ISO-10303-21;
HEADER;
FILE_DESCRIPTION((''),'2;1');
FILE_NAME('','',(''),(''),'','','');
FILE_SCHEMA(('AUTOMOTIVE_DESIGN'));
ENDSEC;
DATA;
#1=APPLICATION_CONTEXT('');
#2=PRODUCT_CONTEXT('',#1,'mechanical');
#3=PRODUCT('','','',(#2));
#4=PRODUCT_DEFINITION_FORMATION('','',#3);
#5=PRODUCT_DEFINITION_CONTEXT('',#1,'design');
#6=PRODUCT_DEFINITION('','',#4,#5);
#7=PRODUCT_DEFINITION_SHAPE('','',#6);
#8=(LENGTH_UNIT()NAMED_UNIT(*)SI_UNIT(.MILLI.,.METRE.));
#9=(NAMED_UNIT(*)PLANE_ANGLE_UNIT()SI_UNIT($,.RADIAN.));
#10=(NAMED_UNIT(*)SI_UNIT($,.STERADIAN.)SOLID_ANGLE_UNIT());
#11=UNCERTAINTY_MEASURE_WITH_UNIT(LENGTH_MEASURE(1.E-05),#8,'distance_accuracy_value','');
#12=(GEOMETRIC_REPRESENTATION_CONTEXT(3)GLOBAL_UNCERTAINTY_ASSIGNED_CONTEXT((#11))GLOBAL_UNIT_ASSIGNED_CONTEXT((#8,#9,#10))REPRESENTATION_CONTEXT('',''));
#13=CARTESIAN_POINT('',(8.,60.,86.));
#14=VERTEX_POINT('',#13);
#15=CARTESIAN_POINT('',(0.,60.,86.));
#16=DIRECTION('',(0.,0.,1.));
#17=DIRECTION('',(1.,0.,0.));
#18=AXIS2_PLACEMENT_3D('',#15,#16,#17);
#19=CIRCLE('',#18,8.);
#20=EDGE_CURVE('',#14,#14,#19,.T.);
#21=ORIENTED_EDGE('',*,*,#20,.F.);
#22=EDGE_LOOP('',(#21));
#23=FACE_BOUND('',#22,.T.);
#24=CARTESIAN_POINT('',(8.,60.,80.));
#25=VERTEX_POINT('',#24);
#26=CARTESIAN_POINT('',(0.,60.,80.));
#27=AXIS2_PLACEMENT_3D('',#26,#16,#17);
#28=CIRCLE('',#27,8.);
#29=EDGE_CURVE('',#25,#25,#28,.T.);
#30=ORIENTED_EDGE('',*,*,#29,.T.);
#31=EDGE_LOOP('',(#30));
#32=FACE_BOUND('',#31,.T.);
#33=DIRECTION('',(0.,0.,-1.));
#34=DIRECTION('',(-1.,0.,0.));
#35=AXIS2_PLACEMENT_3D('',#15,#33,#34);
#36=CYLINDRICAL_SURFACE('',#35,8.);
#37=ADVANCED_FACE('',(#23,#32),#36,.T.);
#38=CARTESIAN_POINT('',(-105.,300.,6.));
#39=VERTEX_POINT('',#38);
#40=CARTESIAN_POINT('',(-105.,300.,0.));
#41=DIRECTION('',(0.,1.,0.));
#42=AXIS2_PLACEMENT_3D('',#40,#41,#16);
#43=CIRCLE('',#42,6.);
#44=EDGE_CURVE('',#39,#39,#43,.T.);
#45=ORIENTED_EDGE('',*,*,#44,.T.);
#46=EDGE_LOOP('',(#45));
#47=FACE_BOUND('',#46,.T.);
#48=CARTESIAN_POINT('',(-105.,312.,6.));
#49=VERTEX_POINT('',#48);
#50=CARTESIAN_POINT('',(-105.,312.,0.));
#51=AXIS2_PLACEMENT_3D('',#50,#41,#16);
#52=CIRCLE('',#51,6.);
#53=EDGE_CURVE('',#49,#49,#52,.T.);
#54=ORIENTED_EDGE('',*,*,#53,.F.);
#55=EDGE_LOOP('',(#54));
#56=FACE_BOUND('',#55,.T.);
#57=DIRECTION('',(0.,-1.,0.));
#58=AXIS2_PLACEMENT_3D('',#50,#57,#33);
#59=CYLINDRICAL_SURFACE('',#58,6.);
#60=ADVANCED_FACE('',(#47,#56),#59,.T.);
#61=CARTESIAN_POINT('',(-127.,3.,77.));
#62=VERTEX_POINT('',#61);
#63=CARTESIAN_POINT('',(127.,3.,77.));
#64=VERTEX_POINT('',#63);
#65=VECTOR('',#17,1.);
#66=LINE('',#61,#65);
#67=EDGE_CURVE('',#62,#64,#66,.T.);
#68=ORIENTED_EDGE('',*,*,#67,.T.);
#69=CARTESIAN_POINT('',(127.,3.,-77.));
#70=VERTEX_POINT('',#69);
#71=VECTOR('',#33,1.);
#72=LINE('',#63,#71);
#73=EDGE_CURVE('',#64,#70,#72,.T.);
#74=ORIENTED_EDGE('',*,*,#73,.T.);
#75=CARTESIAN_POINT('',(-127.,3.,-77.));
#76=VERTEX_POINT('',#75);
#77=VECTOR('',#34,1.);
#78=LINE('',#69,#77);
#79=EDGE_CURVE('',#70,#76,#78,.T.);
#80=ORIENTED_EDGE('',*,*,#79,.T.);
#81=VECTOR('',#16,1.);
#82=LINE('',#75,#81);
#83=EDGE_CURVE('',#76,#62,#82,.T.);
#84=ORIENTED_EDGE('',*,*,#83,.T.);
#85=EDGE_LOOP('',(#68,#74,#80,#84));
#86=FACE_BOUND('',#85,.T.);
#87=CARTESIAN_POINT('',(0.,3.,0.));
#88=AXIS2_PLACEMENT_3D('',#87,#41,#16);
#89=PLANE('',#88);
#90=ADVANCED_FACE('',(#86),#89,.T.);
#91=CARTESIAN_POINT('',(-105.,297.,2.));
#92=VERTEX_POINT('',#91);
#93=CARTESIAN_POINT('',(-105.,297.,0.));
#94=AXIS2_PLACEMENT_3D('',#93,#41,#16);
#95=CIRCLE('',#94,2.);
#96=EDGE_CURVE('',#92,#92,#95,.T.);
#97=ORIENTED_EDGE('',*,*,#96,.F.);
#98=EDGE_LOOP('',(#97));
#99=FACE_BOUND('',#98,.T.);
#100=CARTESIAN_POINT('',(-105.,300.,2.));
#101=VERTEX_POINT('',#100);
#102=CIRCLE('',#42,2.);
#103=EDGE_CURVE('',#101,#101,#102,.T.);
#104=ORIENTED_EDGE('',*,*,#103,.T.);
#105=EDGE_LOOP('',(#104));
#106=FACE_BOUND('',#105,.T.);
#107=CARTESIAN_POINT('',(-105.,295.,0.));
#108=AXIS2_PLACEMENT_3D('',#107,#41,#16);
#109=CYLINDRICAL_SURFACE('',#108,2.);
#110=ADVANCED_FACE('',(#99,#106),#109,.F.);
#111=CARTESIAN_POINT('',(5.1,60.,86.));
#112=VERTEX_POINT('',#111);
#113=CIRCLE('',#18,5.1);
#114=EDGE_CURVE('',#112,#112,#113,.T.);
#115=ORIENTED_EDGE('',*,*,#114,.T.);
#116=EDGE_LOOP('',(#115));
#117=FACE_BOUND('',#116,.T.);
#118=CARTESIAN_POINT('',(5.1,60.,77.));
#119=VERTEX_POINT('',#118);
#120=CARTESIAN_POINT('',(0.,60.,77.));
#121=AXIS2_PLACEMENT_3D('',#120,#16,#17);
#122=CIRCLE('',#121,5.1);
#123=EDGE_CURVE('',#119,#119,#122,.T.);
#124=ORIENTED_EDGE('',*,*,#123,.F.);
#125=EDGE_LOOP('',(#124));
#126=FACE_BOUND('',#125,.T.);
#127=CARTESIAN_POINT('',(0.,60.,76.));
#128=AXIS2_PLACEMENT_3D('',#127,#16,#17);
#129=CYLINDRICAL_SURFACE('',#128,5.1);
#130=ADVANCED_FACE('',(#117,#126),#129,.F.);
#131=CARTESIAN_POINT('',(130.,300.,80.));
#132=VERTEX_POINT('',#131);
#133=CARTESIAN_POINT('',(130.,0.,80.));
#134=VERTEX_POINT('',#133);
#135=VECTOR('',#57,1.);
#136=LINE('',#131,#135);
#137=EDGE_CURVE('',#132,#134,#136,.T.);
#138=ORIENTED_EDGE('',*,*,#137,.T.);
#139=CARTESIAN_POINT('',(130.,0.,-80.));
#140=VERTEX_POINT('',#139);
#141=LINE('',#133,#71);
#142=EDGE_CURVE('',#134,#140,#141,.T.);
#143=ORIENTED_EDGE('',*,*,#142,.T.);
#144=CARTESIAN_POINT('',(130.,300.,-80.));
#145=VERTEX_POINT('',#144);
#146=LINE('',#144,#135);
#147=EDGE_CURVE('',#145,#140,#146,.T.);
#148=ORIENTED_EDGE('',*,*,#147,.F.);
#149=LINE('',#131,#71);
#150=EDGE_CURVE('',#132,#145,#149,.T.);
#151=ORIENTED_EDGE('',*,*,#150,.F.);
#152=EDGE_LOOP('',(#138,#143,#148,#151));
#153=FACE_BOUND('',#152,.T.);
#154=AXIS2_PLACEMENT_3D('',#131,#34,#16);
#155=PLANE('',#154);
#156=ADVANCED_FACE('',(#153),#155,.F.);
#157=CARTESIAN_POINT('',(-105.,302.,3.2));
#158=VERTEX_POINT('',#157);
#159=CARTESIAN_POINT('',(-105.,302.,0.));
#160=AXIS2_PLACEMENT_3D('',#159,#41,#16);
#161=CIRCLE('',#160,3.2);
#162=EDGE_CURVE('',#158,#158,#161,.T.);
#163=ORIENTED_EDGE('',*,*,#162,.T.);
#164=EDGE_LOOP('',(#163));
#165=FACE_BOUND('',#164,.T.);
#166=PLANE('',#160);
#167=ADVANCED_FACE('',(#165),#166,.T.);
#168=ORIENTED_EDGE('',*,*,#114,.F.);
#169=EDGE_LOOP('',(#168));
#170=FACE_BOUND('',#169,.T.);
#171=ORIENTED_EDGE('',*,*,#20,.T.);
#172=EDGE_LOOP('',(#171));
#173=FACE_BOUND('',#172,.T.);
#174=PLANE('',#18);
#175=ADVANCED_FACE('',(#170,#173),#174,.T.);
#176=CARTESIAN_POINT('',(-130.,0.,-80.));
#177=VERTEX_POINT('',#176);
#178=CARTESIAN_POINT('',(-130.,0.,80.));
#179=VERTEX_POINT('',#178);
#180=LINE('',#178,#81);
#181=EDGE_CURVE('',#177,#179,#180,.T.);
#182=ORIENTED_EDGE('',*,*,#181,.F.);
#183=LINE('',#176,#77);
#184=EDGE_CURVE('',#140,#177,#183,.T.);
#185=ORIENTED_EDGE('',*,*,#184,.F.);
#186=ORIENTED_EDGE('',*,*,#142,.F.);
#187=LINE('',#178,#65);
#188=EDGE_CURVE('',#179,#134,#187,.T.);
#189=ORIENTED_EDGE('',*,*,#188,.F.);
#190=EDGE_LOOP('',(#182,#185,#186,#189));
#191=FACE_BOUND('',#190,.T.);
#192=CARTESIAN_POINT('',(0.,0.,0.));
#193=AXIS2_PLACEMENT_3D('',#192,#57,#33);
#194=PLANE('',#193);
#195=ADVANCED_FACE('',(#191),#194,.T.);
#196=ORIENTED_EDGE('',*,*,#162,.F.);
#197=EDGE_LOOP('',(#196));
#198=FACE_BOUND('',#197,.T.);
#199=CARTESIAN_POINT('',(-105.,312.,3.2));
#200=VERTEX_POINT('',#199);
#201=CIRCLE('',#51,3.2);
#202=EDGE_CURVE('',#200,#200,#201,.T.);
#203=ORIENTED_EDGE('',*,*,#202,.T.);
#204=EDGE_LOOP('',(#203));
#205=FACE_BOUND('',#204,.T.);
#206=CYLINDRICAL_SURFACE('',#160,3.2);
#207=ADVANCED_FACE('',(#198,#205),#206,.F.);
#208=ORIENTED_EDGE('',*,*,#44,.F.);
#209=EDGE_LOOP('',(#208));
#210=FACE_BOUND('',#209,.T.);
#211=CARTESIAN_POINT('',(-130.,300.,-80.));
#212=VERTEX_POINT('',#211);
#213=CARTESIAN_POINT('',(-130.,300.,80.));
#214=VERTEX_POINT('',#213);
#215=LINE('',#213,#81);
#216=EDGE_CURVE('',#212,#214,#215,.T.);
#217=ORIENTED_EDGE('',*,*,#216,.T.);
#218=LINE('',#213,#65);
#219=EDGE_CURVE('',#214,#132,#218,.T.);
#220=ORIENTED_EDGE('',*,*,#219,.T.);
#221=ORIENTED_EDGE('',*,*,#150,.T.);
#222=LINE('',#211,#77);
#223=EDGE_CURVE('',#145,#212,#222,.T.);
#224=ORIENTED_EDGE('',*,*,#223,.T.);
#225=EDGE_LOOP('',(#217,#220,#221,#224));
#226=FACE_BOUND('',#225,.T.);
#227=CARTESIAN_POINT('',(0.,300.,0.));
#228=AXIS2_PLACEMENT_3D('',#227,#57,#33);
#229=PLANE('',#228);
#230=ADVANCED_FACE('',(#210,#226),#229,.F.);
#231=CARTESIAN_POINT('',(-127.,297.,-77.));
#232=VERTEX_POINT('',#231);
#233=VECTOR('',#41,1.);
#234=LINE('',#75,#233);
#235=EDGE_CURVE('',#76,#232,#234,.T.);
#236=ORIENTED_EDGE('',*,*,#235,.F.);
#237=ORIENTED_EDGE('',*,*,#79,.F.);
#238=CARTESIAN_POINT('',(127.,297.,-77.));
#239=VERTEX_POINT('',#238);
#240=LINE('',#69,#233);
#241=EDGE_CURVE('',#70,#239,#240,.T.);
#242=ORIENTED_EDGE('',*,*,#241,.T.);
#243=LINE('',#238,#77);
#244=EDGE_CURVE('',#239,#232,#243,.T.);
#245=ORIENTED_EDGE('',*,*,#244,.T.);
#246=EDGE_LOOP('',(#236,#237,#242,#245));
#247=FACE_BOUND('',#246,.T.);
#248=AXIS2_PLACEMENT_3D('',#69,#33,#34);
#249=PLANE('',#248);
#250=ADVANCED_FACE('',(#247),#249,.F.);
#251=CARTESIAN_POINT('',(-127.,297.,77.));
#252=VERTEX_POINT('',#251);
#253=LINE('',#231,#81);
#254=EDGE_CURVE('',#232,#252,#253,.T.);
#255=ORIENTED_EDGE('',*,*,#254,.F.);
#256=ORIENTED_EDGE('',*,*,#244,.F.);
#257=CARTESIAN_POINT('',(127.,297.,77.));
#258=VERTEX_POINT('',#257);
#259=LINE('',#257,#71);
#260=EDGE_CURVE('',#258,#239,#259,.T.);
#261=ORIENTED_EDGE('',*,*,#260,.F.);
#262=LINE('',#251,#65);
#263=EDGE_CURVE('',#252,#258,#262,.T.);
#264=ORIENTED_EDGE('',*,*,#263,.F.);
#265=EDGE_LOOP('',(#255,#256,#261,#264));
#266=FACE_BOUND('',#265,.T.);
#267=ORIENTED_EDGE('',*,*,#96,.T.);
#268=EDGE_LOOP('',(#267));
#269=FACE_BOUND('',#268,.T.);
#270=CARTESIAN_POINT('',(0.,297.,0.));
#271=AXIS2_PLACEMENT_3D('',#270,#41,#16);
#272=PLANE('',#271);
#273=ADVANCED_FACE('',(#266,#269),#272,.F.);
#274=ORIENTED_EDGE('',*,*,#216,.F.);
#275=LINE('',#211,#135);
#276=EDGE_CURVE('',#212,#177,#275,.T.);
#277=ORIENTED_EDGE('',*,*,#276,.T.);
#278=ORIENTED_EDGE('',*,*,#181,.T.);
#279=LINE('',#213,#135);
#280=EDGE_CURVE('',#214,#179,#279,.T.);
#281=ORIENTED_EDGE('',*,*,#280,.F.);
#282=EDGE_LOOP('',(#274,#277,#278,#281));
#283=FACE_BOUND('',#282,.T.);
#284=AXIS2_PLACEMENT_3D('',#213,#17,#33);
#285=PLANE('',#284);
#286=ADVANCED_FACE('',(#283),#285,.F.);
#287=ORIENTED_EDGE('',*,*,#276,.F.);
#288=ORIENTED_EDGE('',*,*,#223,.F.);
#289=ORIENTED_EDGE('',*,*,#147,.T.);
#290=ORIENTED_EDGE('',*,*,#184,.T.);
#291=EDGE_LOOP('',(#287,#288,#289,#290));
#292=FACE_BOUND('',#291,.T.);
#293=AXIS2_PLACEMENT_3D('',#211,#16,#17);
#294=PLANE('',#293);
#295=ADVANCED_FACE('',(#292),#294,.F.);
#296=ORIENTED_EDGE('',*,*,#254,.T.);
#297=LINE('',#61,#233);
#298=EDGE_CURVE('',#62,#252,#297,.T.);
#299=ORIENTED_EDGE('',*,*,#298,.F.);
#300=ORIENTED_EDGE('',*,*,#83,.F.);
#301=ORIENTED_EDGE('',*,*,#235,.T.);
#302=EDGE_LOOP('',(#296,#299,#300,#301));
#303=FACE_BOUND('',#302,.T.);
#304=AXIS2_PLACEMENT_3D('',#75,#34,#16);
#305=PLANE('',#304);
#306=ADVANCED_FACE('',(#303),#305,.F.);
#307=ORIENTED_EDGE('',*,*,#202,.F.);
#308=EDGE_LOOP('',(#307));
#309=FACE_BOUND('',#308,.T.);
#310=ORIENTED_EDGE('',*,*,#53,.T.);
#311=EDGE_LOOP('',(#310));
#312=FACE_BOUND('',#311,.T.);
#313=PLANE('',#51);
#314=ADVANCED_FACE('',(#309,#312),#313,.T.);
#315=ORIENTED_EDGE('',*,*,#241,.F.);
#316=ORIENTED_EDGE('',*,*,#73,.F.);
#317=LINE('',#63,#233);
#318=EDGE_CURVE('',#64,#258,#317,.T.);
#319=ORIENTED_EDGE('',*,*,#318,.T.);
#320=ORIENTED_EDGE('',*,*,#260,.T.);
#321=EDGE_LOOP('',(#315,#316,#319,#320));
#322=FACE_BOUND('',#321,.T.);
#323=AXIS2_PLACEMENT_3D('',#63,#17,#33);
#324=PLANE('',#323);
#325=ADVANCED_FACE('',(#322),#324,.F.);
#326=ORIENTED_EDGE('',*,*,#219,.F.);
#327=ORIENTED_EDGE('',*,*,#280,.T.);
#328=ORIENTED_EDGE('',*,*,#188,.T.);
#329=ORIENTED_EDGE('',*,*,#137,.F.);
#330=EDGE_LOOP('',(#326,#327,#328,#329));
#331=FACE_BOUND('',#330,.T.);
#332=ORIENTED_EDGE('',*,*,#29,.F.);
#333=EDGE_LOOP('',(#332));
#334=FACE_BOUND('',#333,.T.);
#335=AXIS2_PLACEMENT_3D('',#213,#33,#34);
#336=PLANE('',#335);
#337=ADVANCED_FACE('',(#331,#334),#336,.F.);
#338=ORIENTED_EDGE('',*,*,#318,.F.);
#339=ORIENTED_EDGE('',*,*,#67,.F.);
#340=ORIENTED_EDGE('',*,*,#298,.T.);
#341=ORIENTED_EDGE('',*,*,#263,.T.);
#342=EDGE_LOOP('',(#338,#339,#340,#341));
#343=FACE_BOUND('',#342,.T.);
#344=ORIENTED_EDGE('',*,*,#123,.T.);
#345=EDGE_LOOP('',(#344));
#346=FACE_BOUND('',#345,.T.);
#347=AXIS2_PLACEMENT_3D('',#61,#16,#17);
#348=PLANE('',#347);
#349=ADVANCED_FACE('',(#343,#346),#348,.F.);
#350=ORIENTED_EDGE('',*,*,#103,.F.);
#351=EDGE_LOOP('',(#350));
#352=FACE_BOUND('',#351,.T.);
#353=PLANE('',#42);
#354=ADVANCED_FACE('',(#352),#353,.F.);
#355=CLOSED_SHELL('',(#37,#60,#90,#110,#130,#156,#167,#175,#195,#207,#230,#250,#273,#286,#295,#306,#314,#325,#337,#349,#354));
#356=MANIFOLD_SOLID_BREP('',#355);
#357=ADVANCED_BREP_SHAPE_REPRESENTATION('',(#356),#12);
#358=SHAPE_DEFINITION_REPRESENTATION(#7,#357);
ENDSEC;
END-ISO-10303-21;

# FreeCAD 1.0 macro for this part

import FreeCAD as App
import Part
import Sketcher


def add_polygon(sketch, points):
    """Adds a closed chain of lines whose ends are joined by coincident constraints."""
    first, n = sketch.GeometryCount, len(points)
    for a, b in zip(points, points[1:] + points[:1]):
        sketch.addGeometry(Part.LineSegment(App.Vector(*a, 0), App.Vector(*b, 0)), False)
    for i in range(n):
        sketch.addConstraint(Sketcher.Constraint("Coincident", first + i, 2, first + (i + 1) % n, 1))

doc = App.newDocument("Part")
body = doc.addObject("PartDesign::Body", "Body")

sketch1 = body.newObject("Sketcher::SketchObject", "Sketch")
sketch1.AttachmentSupport = (doc.getObject("XZ_Plane"), [""])
sketch1.MapMode = "FlatFace"
add_polygon(sketch1, [(-130, -80), (-130, 80), (130, 80), (130, -80)])
sketch1.addConstraint([
    Sketcher.Constraint("Vertical", 0),
    Sketcher.Constraint("Horizontal", 1),
    Sketcher.Constraint("Vertical", 2),
    Sketcher.Constraint("Horizontal", 3),
    Sketcher.Constraint("Symmetric", 0, 2, 2, 2, -1, 1),
    Sketcher.Constraint("DistanceX", 1, 1, 1, 2, 260.0),
    Sketcher.Constraint("DistanceY", 0, 1, 0, 2, 160.0),
])
pad1 = body.newObject("PartDesign::Pad", "Pad")
pad1.Profile = sketch1
pad1.Length = 300
pad1.Reversed = True

sketch2 = body.newObject("Sketcher::SketchObject", "Sketch001")
sketch2.AttachmentSupport = (doc.getObject("XZ_Plane"), [""])
sketch2.MapMode = "FlatFace"
sketch2.AttachmentOffset = App.Placement(App.Vector(0, 0, -297), App.Rotation())
add_polygon(sketch2, [(-127, -77), (-127, 77), (127, 77), (127, -77)])
sketch2.addConstraint([
    Sketcher.Constraint("Vertical", 0),
    Sketcher.Constraint("Horizontal", 1),
    Sketcher.Constraint("Vertical", 2),
    Sketcher.Constraint("Horizontal", 3),
    Sketcher.Constraint("Symmetric", 0, 2, 2, 2, -1, 1),
    Sketcher.Constraint("DistanceX", 1, 1, 1, 2, 254.0),
    Sketcher.Constraint("DistanceY", 0, 1, 0, 2, 154.0),
])
pocket1 = body.newObject("PartDesign::Pocket", "Pocket")
pocket1.Profile = sketch2
pocket1.Length = 294
pocket1.Reversed = True

sketch3 = body.newObject("Sketcher::SketchObject", "Sketch002")
sketch3.AttachmentSupport = (doc.getObject("XZ_Plane"), [""])
sketch3.MapMode = "FlatFace"
sketch3.AttachmentOffset = App.Placement(App.Vector(0, 0, -300), App.Rotation())
sketch3.addGeometry(Part.Circle(App.Vector(-105, 0, 0), App.Vector(0, 0, 1), 6), False)
sketch3.addConstraint([
    Sketcher.Constraint("PointOnObject", 0, 3, -1),
    Sketcher.Constraint("Diameter", 0, 12.0),
    Sketcher.Constraint("DistanceX", 0, 3, -1, 1, 105.0),
])
pad2 = body.newObject("PartDesign::Pad", "Pad001")
pad2.Profile = sketch3
pad2.Length = 12
pad2.Reversed = True

sketch4 = body.newObject("Sketcher::SketchObject", "Sketch003")
sketch4.AttachmentSupport = (doc.getObject("XZ_Plane"), [""])
sketch4.MapMode = "FlatFace"
sketch4.AttachmentOffset = App.Placement(App.Vector(0, 0, -312), App.Rotation())
sketch4.addGeometry(Part.Circle(App.Vector(-105, 0, 0), App.Vector(0, 0, 1), 3.2), False)
sketch4.addConstraint([
    Sketcher.Constraint("PointOnObject", 0, 3, -1),
    Sketcher.Constraint("Diameter", 0, 6.4),
    Sketcher.Constraint("DistanceX", 0, 3, -1, 1, 105.0),
])
pocket2 = body.newObject("PartDesign::Pocket", "Pocket001")
pocket2.Profile = sketch4
pocket2.Length = 10
pocket2.Reversed = True

sketch5 = body.newObject("Sketcher::SketchObject", "Sketch004")
sketch5.AttachmentSupport = (doc.getObject("XZ_Plane"), [""])
sketch5.MapMode = "FlatFace"
sketch5.AttachmentOffset = App.Placement(App.Vector(0, 0, -300), App.Rotation())
sketch5.addGeometry(Part.Circle(App.Vector(-105, 0, 0), App.Vector(0, 0, 1), 2), False)
sketch5.addConstraint([
    Sketcher.Constraint("PointOnObject", 0, 3, -1),
    Sketcher.Constraint("Diameter", 0, 4.0),
    Sketcher.Constraint("DistanceX", 0, 3, -1, 1, 105.0),
])
pocket3 = body.newObject("PartDesign::Pocket", "Pocket002")
pocket3.Profile = sketch5
pocket3.Length = 5
pocket3.Reversed = True

sketch6 = body.newObject("Sketcher::SketchObject", "Sketch005")
sketch6.AttachmentSupport = (doc.getObject("XY_Plane"), [""])
sketch6.MapMode = "FlatFace"
sketch6.AttachmentOffset = App.Placement(App.Vector(0, 0, 80), App.Rotation())
sketch6.addGeometry(Part.Circle(App.Vector(0, 60, 0), App.Vector(0, 0, 1), 8), False)
sketch6.addConstraint([
    Sketcher.Constraint("PointOnObject", 0, 3, -2),
    Sketcher.Constraint("Diameter", 0, 16.0),
    Sketcher.Constraint("DistanceY", -1, 1, 0, 3, 60.0),
])
pad3 = body.newObject("PartDesign::Pad", "Pad002")
pad3.Profile = sketch6
pad3.Length = 6

sketch7 = body.newObject("Sketcher::SketchObject", "Sketch006")
sketch7.AttachmentSupport = (doc.getObject("XY_Plane"), [""])
sketch7.MapMode = "FlatFace"
sketch7.AttachmentOffset = App.Placement(App.Vector(0, 0, 86), App.Rotation())
sketch7.addGeometry(Part.Circle(App.Vector(0, 60, 0), App.Vector(0, 0, 1), 5), False)
sketch7.addConstraint([
    Sketcher.Constraint("PointOnObject", 0, 3, -2),
    Sketcher.Constraint("Diameter", 0, 10.2),
    Sketcher.Constraint("DistanceY", -1, 1, 0, 3, 60.0),
])
pocket4 = body.newObject("PartDesign::Pocket", "Pocket003")
pocket4.Profile = sketch7
pocket4.Length = 10

doc.recompute()
